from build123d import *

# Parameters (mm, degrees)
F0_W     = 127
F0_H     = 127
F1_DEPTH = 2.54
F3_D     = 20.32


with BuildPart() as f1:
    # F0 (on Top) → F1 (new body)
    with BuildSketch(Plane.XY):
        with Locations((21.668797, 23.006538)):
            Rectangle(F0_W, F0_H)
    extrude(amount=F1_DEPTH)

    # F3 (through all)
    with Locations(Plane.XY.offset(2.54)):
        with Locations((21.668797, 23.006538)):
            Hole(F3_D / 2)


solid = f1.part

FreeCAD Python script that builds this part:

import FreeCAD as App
import Part
import Sketcher
from FreeCAD import Vector
Q = App.Units.Quantity


def add_polygon(sketch, points):
    """Adds a closed chain of lines whose ends are joined by coincident constraints."""
    first, n = sketch.GeometryCount, len(points)
    for a, b in zip(points, points[1:] + points[:1]):
        sketch.addGeometry(Part.LineSegment(App.Vector(*a, 0), App.Vector(*b, 0)), False)
    for i in range(n):
        sketch.addConstraint(Sketcher.Constraint("Coincident", first + i, 2, first + (i + 1) % n, 1))

doc = App.newDocument("Part")
body = doc.addObject("PartDesign::Body", "Body")

sketch1 = body.newObject("Sketcher::SketchObject", "Sketch")
sketch1.AttachmentSupport = (doc.getObject("XY_Plane"), [""])
sketch1.MapMode = "FlatFace"
add_polygon(sketch1, [(-42, 87), (-42, -40), (85, -40), (85, 87)])
sketch1.addConstraint(Sketcher.Constraint("Vertical", 0))
sketch1.addConstraint(Sketcher.Constraint("Horizontal", 1))
sketch1.addConstraint(Sketcher.Constraint("Vertical", 2))
sketch1.addConstraint(Sketcher.Constraint("Horizontal", 3))
sketch1.addConstraint(Sketcher.Constraint("Equal", 3, 0))
sketch1.addConstraint(Sketcher.Constraint("DistanceX", 1, 1, 1, 2, Q("5 in")))
sketch1.addConstraint(Sketcher.Constraint("DistanceY", -1, 1, 2, 2, Q("86.506538 mm")))
sketch1.addConstraint(Sketcher.Constraint("DistanceX", 0, 2, -1, 1, Q("41.831203 mm")))
pad1 = body.newObject("PartDesign::Pad", "Pad")
pad1.Profile = sketch1
pad1.Length = Q("0.1 in")

sketch2 = body.newObject("Sketcher::SketchObject", "Sketch001")
sketch2.AttachmentSupport = (doc.getObject("XY_Plane"), [""])
sketch2.MapMode = "FlatFace"
sketch2.AttachmentOffset = App.Placement(Vector(0, 0, 0.1 * 25.4), App.Rotation())
sketch2.addGeometry(Part.Circle(Vector(22, 23, 0), Vector(0, 0, 1), 10), False)
sketch2.addConstraint(Sketcher.Constraint("Diameter", 0, Q("0.8 in")))
sketch2.addConstraint(Sketcher.Constraint("DistanceX", -1, 1, 0, 3, Q("21.668797 mm")))
sketch2.addConstraint(Sketcher.Constraint("DistanceY", -1, 1, 0, 3, Q("23.006538 mm")))
doc.recompute()
hole = body.newObject("PartDesign::Hole", "Hole")
hole.Profile = sketch2
hole.ThreadType = "None"
hole.Diameter = Q("0.8 in")
hole.DepthType = "ThroughAll"

doc.recompute()
